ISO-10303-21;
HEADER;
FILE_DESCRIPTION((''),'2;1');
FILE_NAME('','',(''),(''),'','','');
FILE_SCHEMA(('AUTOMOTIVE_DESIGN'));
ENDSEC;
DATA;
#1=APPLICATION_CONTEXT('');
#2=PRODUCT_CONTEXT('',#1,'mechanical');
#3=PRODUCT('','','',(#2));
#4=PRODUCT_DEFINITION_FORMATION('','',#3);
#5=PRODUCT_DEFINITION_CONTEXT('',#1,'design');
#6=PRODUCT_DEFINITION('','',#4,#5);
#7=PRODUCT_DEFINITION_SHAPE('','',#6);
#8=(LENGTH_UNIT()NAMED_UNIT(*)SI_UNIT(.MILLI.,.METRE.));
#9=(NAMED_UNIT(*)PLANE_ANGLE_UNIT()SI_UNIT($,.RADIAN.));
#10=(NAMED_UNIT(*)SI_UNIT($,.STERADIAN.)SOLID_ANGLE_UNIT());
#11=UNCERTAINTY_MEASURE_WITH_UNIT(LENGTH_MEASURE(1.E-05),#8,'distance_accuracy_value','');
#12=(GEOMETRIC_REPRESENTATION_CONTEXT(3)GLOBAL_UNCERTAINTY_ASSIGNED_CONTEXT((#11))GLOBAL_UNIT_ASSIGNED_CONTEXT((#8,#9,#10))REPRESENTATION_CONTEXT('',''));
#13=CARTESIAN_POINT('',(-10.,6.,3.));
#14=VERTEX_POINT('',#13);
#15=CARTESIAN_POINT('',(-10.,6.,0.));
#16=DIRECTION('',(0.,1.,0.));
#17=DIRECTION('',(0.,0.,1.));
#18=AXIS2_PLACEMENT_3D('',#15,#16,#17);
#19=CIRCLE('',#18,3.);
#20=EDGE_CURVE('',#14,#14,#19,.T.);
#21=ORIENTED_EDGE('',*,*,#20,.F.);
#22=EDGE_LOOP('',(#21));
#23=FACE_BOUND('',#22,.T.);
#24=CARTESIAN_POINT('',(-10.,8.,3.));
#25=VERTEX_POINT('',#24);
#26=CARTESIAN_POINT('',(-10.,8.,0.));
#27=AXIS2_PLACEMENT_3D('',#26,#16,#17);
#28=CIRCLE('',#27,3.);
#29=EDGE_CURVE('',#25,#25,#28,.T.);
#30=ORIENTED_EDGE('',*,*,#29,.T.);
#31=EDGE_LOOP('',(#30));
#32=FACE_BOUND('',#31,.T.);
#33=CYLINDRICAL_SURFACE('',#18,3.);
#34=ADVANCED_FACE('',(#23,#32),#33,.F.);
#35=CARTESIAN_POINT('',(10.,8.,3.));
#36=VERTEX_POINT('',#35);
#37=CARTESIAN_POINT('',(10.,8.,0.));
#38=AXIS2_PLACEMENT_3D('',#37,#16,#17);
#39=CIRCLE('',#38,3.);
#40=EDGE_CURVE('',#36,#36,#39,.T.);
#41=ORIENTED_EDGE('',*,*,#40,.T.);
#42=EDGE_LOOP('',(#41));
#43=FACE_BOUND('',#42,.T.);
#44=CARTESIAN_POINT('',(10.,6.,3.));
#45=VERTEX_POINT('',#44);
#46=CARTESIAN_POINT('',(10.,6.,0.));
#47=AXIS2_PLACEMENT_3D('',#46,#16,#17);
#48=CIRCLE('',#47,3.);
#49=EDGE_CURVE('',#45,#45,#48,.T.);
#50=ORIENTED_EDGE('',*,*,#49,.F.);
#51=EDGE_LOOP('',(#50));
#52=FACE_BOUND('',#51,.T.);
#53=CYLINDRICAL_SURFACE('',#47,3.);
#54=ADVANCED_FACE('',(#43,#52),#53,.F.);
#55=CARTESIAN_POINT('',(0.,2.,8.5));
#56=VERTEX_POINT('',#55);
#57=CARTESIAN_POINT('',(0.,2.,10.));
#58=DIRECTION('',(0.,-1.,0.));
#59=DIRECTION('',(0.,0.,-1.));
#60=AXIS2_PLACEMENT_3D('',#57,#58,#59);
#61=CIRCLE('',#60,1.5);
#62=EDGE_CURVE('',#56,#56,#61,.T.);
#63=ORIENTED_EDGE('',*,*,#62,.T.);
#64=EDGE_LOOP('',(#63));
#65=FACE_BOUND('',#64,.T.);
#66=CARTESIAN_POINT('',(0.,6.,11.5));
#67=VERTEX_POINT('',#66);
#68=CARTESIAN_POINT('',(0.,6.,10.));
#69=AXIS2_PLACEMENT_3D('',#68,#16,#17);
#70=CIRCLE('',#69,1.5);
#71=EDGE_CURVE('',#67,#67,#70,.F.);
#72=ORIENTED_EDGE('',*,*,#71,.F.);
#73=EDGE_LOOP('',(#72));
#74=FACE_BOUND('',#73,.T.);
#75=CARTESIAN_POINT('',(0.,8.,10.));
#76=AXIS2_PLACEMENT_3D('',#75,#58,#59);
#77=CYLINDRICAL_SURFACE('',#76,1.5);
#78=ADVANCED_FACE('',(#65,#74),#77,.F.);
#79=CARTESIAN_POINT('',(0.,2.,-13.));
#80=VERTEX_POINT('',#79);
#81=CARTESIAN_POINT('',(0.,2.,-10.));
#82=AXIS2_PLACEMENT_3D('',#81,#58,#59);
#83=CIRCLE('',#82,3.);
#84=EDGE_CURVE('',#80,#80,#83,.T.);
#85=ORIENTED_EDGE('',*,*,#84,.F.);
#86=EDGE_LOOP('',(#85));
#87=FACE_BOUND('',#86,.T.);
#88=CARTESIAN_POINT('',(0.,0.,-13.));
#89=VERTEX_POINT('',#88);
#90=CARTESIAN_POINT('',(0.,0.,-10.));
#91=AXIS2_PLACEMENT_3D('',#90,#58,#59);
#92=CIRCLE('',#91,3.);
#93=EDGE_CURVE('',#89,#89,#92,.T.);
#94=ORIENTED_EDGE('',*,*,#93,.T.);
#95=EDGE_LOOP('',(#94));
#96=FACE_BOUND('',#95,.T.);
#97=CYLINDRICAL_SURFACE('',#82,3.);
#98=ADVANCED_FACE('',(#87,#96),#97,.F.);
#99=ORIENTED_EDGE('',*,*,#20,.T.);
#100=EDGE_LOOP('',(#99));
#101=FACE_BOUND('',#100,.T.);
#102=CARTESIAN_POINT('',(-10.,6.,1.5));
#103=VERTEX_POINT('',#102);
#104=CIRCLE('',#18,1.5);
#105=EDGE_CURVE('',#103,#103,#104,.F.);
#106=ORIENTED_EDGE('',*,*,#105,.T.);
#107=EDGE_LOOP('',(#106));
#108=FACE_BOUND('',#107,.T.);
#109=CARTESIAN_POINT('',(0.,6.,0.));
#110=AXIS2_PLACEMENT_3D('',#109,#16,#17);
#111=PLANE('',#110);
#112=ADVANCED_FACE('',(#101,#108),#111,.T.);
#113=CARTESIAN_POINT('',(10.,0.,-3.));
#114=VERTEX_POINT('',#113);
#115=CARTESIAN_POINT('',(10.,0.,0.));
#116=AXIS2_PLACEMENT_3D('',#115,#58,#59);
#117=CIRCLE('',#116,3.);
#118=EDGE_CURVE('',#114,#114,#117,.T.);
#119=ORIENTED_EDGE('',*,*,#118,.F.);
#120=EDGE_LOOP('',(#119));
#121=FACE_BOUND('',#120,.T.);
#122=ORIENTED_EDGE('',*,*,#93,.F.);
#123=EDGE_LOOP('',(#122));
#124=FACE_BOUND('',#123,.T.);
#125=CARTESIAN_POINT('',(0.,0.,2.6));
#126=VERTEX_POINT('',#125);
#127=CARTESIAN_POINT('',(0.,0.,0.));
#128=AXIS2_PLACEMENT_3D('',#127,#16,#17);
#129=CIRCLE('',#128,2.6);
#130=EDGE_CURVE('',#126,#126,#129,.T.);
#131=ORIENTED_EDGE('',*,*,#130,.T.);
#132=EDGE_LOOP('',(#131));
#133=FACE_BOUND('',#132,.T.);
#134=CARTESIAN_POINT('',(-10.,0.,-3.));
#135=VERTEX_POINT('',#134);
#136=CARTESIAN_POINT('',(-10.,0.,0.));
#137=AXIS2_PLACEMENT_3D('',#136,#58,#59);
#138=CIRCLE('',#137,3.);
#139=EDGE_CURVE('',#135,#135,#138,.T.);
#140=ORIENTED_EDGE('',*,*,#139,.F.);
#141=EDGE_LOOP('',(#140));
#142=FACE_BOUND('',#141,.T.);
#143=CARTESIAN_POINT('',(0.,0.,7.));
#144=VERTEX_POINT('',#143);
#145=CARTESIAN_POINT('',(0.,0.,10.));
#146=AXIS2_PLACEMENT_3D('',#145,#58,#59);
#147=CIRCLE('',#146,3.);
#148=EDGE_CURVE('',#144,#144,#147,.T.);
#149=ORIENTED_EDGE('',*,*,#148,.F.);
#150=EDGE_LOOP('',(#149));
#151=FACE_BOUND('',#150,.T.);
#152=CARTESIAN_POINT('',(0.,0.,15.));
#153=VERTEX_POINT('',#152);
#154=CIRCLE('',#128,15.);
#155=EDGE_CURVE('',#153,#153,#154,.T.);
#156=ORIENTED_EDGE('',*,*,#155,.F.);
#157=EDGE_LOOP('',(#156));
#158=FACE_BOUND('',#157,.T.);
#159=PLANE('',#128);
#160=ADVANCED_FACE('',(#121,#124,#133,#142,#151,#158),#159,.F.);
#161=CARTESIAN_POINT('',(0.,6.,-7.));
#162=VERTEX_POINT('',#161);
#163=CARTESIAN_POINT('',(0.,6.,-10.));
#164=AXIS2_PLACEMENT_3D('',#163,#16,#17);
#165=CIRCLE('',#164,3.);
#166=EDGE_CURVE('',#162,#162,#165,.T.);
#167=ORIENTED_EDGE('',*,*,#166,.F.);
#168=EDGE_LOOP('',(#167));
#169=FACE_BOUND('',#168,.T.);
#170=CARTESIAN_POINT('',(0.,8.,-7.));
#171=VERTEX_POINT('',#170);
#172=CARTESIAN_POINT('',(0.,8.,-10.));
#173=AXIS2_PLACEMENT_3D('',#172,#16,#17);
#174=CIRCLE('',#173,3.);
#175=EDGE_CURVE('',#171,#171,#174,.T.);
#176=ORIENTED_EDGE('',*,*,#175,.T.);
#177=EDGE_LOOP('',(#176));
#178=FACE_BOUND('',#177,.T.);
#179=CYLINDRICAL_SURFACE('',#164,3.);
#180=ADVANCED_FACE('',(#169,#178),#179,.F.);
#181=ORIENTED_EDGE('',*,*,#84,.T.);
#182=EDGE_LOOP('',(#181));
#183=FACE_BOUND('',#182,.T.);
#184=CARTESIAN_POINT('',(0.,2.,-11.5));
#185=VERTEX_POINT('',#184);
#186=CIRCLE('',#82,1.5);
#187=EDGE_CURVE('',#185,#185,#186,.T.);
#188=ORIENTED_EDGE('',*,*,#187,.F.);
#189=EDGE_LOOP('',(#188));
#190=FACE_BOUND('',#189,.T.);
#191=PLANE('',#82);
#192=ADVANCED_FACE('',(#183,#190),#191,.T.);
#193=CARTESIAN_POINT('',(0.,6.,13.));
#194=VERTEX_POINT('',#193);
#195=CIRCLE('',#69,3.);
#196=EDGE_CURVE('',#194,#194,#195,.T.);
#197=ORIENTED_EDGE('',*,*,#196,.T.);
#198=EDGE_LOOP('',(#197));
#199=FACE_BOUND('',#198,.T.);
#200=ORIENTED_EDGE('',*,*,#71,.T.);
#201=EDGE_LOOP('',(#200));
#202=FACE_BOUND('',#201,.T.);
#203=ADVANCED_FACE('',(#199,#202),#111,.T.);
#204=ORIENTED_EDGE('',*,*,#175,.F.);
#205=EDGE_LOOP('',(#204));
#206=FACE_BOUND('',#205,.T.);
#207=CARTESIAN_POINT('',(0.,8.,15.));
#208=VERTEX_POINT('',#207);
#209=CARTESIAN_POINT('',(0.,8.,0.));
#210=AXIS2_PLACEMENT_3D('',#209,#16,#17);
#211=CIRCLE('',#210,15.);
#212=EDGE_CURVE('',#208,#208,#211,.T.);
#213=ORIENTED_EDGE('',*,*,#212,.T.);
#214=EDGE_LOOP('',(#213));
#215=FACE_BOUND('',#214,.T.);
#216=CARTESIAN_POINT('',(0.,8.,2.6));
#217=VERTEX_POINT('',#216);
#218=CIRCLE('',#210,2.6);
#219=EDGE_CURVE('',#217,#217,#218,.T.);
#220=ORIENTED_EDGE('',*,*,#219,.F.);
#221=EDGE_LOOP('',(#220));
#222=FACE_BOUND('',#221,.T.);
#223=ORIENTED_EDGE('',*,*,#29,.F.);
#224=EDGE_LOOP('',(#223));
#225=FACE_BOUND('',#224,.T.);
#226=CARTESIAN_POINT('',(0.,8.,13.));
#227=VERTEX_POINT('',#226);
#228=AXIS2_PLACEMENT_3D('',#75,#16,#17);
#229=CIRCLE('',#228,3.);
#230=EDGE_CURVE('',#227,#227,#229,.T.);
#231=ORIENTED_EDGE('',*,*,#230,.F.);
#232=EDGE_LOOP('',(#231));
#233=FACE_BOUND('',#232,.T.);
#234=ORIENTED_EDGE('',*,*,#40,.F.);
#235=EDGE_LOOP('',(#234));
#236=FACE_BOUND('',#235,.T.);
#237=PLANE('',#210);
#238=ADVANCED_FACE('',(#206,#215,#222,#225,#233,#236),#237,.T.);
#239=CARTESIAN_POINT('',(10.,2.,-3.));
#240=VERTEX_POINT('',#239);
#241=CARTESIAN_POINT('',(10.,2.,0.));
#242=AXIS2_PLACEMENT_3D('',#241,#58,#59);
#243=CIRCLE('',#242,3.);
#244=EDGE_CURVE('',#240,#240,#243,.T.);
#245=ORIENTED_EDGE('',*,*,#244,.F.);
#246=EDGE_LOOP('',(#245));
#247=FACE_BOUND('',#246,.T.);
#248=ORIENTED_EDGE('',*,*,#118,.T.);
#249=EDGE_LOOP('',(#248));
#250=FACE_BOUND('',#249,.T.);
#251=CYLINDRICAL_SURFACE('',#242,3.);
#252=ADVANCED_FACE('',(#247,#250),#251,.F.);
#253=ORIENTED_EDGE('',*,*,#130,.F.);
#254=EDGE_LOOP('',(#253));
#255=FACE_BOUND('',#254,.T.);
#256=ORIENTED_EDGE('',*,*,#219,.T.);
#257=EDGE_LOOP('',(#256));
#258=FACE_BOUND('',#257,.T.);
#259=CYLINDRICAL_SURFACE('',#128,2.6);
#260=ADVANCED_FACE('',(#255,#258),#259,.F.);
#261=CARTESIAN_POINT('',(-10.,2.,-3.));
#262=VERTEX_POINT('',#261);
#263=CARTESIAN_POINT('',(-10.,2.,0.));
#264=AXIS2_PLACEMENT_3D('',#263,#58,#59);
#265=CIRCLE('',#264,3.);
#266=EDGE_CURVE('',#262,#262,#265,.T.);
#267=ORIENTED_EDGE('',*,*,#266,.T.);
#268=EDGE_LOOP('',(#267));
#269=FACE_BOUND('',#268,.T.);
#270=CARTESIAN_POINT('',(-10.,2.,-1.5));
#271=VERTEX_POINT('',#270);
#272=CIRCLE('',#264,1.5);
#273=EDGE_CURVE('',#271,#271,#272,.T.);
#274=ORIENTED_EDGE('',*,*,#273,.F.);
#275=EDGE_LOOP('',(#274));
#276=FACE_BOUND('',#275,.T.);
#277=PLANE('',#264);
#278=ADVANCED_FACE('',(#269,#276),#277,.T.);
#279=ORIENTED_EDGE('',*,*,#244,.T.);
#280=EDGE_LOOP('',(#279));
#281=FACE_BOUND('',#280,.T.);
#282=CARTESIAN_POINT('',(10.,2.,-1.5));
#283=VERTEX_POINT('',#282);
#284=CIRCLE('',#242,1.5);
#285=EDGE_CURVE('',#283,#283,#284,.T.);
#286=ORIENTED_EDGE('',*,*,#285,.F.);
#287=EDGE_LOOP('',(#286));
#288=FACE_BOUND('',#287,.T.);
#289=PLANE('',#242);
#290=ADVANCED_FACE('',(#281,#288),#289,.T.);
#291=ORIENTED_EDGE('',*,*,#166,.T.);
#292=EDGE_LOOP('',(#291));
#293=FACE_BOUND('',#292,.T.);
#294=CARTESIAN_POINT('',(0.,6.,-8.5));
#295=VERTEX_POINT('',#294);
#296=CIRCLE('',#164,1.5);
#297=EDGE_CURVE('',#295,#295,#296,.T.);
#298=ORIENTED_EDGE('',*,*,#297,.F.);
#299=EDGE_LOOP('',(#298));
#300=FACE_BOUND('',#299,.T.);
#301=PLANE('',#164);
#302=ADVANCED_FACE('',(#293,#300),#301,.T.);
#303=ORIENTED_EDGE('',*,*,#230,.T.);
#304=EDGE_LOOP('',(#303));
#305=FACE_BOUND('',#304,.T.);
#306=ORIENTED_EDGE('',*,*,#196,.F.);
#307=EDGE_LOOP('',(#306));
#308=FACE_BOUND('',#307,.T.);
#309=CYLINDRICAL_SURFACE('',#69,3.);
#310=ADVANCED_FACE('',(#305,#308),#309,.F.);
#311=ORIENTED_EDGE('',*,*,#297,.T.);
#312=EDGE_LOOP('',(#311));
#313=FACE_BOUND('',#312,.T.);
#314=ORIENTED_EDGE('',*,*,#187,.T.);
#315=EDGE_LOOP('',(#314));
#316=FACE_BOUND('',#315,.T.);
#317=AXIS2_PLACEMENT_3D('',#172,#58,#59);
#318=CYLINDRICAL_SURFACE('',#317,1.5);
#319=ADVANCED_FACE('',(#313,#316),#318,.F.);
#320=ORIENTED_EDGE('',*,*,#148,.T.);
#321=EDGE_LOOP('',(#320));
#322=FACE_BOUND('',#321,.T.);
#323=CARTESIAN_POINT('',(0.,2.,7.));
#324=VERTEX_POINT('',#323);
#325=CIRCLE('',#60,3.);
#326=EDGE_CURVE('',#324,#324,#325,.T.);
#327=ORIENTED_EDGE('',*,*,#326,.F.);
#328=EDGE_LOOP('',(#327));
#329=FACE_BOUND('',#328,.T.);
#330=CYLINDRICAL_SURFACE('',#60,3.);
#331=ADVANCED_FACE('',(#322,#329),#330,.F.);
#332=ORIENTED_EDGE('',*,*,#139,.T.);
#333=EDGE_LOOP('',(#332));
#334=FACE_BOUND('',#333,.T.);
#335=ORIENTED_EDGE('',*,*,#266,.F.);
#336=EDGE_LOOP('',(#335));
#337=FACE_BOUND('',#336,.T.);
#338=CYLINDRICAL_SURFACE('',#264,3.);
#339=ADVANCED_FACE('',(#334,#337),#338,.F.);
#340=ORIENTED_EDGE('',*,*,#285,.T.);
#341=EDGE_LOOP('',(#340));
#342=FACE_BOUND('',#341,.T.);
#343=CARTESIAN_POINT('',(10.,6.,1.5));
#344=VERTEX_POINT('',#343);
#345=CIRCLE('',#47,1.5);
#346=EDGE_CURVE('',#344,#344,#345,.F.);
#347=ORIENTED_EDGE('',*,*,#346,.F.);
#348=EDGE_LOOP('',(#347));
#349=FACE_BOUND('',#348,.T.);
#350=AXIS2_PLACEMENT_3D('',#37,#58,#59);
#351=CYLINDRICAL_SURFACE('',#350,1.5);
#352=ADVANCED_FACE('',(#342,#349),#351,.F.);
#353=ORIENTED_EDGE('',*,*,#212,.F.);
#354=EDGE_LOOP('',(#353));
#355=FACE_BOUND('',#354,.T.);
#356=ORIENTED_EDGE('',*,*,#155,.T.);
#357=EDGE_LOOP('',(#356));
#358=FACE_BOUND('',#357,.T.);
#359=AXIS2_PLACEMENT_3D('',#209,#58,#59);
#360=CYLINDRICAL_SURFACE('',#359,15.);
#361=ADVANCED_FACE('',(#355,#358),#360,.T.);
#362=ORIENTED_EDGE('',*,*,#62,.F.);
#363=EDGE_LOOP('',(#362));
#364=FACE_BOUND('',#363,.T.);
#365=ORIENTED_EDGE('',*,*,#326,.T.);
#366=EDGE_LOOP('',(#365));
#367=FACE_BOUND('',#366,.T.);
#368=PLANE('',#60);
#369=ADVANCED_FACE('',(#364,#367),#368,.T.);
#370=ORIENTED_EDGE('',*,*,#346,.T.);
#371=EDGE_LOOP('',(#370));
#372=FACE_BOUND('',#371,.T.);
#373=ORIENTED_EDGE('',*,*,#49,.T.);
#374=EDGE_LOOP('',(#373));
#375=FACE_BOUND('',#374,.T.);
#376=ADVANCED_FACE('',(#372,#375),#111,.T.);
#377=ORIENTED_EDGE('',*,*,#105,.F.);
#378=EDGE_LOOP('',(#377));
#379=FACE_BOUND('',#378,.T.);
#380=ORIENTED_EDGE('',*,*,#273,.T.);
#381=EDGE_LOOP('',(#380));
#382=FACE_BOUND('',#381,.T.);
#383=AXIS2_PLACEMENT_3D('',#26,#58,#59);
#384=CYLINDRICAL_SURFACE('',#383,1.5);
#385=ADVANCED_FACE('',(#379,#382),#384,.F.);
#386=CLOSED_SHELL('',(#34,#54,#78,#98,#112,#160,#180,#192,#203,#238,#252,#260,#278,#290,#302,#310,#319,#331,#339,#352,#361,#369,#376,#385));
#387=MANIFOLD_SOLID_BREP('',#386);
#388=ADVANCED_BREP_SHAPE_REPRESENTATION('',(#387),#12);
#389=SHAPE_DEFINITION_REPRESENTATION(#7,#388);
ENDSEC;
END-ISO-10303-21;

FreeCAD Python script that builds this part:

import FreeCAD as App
import Part
import Sketcher

V = App.Vector

doc = App.newDocument("Part")
params = doc.addObject("Spreadsheet::Sheet", "Params")
for row, (alias, value) in enumerate([
    ("sketch1_diameter", "30 mm"),
    ("sketch1_diameter2", "3 mm"),
    ("pad1_length", "8 mm"),
    ("sketch2_diameter", "5.2 mm"),
    ("sketch3_diameter", "6 mm"),
    ("sketch3_diameter2", "3 mm"),
    ("pocket2_length", "2 mm"),
    ("sketch4_diameter", "6 mm"),
    ("pocket3_length", "2 mm"),
], start=1):
    params.set(f"A{row}", alias)
    params.set(f"B{row}", "=" + value)
    params.setAlias(f"B{row}", alias)

body = doc.addObject("PartDesign::Body", "Body")

sketch1 = body.newObject("Sketcher::SketchObject", "Sketch")
sketch1.AttachmentSupport = (doc.getObject("XZ_Plane"), [""])
sketch1.MapMode = "FlatFace"
sketch1.addGeometry([
    Part.Circle(V(0, 0, 0), V(0, 0, 1), 15),
    Part.Circle(V(0, -10, 0), V(0, 0, 1), 1.5),
    Part.Circle(V(-10, 0, 0), V(0, 0, 1), 1.5),
    Part.Circle(V(10, 0, 0), V(0, 0, 1), 1.5),
    Part.Circle(V(0, 10, 0), V(0, 0, 1), 1.5),
], False)
sketch1.addConstraint([
    Sketcher.Constraint("Coincident", 0, 3, -1, 1),
    Sketcher.Constraint("Equal", 1, 2),
    Sketcher.Constraint("Equal", 2, 3),
    Sketcher.Constraint("Equal", 3, 4),
    Sketcher.Constraint("Symmetric", 2, 3, 3, 3, -1, 1),
    Sketcher.Constraint("Symmetric", 1, 3, 4, 3, -1, 1),
    Sketcher.Constraint("PointOnObject", 1, 3, -2),
    Sketcher.Constraint("PointOnObject", 2, 3, -1),
    Sketcher.Constraint("Diameter", 0, 30.0),
    Sketcher.Constraint("Diameter", 1, 3.0),
    Sketcher.Constraint("DistanceY", 1, 3, -1, 1, 10.0),
    Sketcher.Constraint("DistanceX", 2, 3, -1, 1, 10.0),
])
sketch1.setExpression("Constraints[8]", "Params.sketch1_diameter")
sketch1.setExpression("Constraints[9]", "Params.sketch1_diameter2")
pad1 = body.newObject("PartDesign::Pad", "Pad")
pad1.Profile = sketch1
pad1.setExpression("Length", "Params.pad1_length")
pad1.Reversed = True

sketch2 = body.newObject("Sketcher::SketchObject", "Sketch001")
sketch2.AttachmentSupport = (doc.getObject("XZ_Plane"), [""])
sketch2.MapMode = "FlatFace"
sketch2.AttachmentOffset = App.Placement(V(0, 0, -8), App.Rotation())
sketch2.addGeometry(Part.Circle(V(0, 0, 0), V(0, 0, 1), 2.6), False)
sketch2.addConstraint([
    Sketcher.Constraint("Coincident", 0, 3, -1, 1),
    Sketcher.Constraint("Diameter", 0, 5.2),
])
sketch2.setExpression("Constraints[1]", "Params.sketch2_diameter")
pocket1 = body.newObject("PartDesign::Pocket", "Pocket")
pocket1.Profile = sketch2
pocket1.Type = "ThroughAll"
pocket1.Reversed = True

sketch3 = body.newObject("Sketcher::SketchObject", "Sketch002")
sketch3.AttachmentSupport = (doc.getObject("XZ_Plane"), [""])
sketch3.MapMode = "FlatFace"
sketch3.AttachmentOffset = App.Placement(V(0, 0, -6), App.Rotation())
sketch3.addGeometry([
    Part.Circle(V(-10, 0, 0), V(0, 0, 1), 3),
    Part.Circle(V(-10, 0, 0), V(0, 0, 1), 1.5),
    Part.Circle(V(0, 10, 0), V(0, 0, 1), 3),
    Part.Circle(V(0, 10, 0), V(0, 0, 1), 1.5),
    Part.Circle(V(10, 0, 0), V(0, 0, 1), 3),
    Part.Circle(V(10, 0, 0), V(0, 0, 1), 1.5),
    Part.Circle(V(0, -10, 0), V(0, 0, 1), 3),
], False)
sketch3.addConstraint([
    Sketcher.Constraint("Coincident", 1, 3, 0, 3),
    Sketcher.Constraint("Coincident", 3, 3, 2, 3),
    Sketcher.Constraint("Coincident", 5, 3, 4, 3),
    Sketcher.Constraint("Equal", 0, 2),
    Sketcher.Constraint("Equal", 1, 3),
    Sketcher.Constraint("Equal", 2, 4),
    Sketcher.Constraint("Equal", 3, 5),
    Sketcher.Constraint("Equal", 4, 6),
    Sketcher.Constraint("Symmetric", 0, 3, 4, 3, -1, 1),
    Sketcher.Constraint("Symmetric", 2, 3, 6, 3, -1, 1),
    Sketcher.Constraint("PointOnObject", 0, 3, -1),
    Sketcher.Constraint("PointOnObject", 2, 3, -2),
    Sketcher.Constraint("Diameter", 0, 6.0),
    Sketcher.Constraint("Diameter", 1, 3.0),
    Sketcher.Constraint("DistanceX", 0, 3, -1, 1, 10.0),
    Sketcher.Constraint("DistanceY", -1, 1, 2, 3, 10.0),
])
sketch3.setExpression("Constraints[12]", "Params.sketch3_diameter")
sketch3.setExpression("Constraints[13]", "Params.sketch3_diameter2")
pocket2 = body.newObject("PartDesign::Pocket", "Pocket001")
pocket2.Profile = sketch3
pocket2.setExpression("Length", "Params.pocket2_length")

sketch4 = body.newObject("Sketcher::SketchObject", "Sketch003")
sketch4.AttachmentSupport = (doc.getObject("XZ_Plane"), [""])
sketch4.MapMode = "FlatFace"
sketch4.addGeometry([
    Part.Circle(V(0, 10, 0), V(0, 0, 1), 3),
    Part.Circle(V(10, 0, 0), V(0, 0, 1), 3),
    Part.Circle(V(0, -10, 0), V(0, 0, 1), 3),
    Part.Circle(V(-10, 0, 0), V(0, 0, 1), 3),
], False)
sketch4.addConstraint([
    Sketcher.Constraint("Equal", 0, 1),
    Sketcher.Constraint("Equal", 1, 2),
    Sketcher.Constraint("Equal", 2, 3),
    Sketcher.Constraint("Symmetric", 0, 3, 2, 3, -1, 1),
    Sketcher.Constraint("Symmetric", 1, 3, 3, 3, -1, 1),
    Sketcher.Constraint("PointOnObject", 0, 3, -2),
    Sketcher.Constraint("PointOnObject", 1, 3, -1),
    Sketcher.Constraint("Diameter", 0, 6.0),
    Sketcher.Constraint("DistanceY", -1, 1, 0, 3, 10.0),
    Sketcher.Constraint("DistanceX", -1, 1, 1, 3, 10.0),
])
sketch4.setExpression("Constraints[7]", "Params.sketch4_diameter")
pocket3 = body.newObject("PartDesign::Pocket", "Pocket002")
pocket3.Profile = sketch4
pocket3.setExpression("Length", "Params.pocket3_length")

doc.recompute()
